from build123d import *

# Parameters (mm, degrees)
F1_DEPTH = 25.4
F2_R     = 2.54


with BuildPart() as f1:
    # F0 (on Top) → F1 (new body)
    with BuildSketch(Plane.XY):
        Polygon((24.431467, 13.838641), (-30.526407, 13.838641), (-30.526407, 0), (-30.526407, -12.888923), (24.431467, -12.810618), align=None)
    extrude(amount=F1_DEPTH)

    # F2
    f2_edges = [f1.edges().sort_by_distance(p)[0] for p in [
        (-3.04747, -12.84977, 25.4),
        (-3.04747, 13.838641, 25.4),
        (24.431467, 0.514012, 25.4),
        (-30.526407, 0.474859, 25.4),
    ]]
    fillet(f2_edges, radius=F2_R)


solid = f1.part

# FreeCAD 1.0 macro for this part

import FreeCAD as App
import Part
import Sketcher
Q = App.Units.Quantity


def edges_at(feature, points):
    """Names of the edges that pass closest to the given points."""
    edges = feature.Shape.Edges
    near = lambda p: min(range(len(edges)), key=lambda i: edges[i].distToShape(Part.Vertex(*p))[0])
    return sorted({f"Edge{near(p) + 1}" for p in points})

doc = App.newDocument("Part")
params = doc.addObject("Spreadsheet::Sheet", "Params")
for row, (alias, value) in enumerate([
    ("pad1_length", "1 in"),
    ("fillet_radius", "0.1 in"),
], start=1):
    params.set(f"A{row}", alias)
    params.set(f"B{row}", "=" + value)
    params.setAlias(f"B{row}", alias)

body = doc.addObject("PartDesign::Body", "Body")

# Sketch on XY plane
sketch1 = body.newObject("Sketcher::SketchObject", "Sketch")
sketch1.AttachmentSupport = (doc.getObject("XY_Plane"), [""])
sketch1.MapMode = "FlatFace"
sketch1.addGeometry([
    Part.LineSegment(App.Vector(24, 14, 0), App.Vector(-31, 14, 0)),
    Part.LineSegment(App.Vector(-31, 14, 0), App.Vector(-31, -13, 0)),
    Part.LineSegment(App.Vector(-31, -13, 0), App.Vector(24, -13, 0)),
    Part.LineSegment(App.Vector(24, -13, 0), App.Vector(24, 14, 0)),
], False)
sketch1.addConstraint([
    Sketcher.Constraint("Coincident", 0, 2, 1, 1),
    Sketcher.Constraint("Coincident", 1, 2, 2, 1),
    Sketcher.Constraint("Coincident", 2, 2, 3, 1),
    Sketcher.Constraint("Coincident", 3, 2, 0, 1),
    Sketcher.Constraint("Horizontal", 0),
    Sketcher.Constraint("Vertical", 1),
    Sketcher.Constraint("Vertical", 3),
    Sketcher.Constraint("DistanceY", 3, 1, 3, 2, Q("26.649259 mm")),
    Sketcher.Constraint("Distance", 2, Q("54.95793 mm")),
    Sketcher.Constraint("DistanceY", 1, 2, 1, 1, Q("26.727564 mm")),
    Sketcher.Constraint("DistanceY", -1, 1, 0, 2, Q("13.838641 mm")),
    Sketcher.Constraint("DistanceX", 0, 2, -1, 1, Q("30.526407 mm")),
])
pad1 = body.newObject("PartDesign::Pad", "Pad")
pad1.Profile = sketch1
pad1.setExpression("Length", "Params.pad1_length")
doc.recompute()

fillet = body.newObject("PartDesign::Fillet", "Fillet")
fillet.Base = (pad1, edges_at(pad1, [
    (-3.047, -12.85, 25.4),
    (-3.047, 13.839, 25.4),
    (24.431, 0.514, 25.4),
    (-30.526, 0.475, 25.4),
]))
fillet.setExpression("Radius", "Params.fillet_radius")

doc.recompute()
